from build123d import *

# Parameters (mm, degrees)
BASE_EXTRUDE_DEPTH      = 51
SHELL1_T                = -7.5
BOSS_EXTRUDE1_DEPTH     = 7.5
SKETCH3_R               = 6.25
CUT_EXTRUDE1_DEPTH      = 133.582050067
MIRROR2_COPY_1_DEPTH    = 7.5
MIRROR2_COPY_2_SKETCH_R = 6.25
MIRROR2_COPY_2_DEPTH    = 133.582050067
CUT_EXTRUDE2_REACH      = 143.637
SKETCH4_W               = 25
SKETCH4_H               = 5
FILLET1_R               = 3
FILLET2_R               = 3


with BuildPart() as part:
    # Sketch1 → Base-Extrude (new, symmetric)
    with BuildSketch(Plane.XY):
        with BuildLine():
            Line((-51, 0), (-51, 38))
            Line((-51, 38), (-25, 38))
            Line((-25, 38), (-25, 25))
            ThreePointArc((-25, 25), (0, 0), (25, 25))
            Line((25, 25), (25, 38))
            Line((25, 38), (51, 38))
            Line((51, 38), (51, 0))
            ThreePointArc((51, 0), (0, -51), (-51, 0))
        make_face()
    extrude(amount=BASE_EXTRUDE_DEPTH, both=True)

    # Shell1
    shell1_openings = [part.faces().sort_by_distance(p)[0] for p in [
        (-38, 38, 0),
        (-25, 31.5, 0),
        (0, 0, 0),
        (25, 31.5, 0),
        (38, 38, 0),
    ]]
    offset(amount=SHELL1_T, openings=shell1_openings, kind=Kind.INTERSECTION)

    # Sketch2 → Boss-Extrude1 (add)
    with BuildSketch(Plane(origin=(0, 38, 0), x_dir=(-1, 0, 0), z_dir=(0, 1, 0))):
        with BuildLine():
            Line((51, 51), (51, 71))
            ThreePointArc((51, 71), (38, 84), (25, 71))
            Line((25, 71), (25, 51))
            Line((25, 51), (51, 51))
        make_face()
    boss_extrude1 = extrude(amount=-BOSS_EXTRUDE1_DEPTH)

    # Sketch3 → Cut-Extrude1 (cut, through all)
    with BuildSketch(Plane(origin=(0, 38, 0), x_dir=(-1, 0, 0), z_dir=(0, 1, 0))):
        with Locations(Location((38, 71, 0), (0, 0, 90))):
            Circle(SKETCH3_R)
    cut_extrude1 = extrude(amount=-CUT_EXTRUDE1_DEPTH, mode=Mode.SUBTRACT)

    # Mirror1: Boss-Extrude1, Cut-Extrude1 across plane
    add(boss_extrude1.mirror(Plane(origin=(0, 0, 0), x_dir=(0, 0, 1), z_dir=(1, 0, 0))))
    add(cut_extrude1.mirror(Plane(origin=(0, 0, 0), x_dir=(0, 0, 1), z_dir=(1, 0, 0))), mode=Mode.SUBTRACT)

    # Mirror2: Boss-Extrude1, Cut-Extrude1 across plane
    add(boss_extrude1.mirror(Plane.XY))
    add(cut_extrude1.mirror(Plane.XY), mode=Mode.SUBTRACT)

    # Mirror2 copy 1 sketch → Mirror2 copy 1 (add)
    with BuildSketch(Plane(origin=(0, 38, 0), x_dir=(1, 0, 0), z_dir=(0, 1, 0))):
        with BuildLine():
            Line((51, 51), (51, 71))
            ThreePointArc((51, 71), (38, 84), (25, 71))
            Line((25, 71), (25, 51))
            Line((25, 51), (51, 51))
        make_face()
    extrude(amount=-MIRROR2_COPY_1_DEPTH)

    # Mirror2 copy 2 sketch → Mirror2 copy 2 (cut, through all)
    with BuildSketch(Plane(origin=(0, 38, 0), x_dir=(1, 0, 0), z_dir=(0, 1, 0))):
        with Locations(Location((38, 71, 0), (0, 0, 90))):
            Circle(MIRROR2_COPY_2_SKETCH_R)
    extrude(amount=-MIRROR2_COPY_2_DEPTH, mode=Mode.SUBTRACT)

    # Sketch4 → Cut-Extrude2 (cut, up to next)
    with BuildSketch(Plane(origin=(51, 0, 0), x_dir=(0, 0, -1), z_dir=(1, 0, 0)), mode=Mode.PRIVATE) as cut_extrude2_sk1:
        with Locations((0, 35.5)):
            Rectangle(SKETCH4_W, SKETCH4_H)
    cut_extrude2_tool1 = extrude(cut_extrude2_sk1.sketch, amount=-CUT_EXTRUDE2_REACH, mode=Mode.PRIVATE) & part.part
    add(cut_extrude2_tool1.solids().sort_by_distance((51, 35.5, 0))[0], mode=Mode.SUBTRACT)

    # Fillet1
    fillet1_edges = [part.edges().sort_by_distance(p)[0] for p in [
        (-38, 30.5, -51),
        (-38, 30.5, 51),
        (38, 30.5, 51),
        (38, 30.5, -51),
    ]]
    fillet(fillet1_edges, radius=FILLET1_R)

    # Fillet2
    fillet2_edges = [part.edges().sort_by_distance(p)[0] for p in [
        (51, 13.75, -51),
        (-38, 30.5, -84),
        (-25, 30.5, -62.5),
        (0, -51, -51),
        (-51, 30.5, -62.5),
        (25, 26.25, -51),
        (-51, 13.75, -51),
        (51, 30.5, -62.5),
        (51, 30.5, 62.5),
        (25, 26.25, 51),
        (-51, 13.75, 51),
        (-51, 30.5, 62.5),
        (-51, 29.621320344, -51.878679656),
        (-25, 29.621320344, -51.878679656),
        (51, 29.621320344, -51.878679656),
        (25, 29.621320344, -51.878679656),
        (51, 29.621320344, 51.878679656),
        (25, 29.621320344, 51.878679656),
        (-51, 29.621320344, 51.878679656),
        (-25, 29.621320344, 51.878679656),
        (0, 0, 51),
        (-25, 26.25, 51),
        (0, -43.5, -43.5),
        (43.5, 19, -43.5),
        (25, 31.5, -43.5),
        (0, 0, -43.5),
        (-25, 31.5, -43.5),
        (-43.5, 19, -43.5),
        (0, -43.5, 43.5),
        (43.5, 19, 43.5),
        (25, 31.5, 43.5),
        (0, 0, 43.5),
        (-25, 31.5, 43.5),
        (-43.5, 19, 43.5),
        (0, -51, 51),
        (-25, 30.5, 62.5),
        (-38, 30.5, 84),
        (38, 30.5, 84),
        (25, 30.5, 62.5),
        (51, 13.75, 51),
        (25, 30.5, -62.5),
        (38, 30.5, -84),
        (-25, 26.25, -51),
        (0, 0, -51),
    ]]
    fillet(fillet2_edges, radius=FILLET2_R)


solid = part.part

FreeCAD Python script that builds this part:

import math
import FreeCAD as App
import Part
import Sketcher
from FreeCAD import Vector


def edges_at(feature, points):
    """Names of the edges that pass closest to the given points."""
    edges = feature.Shape.Edges
    near = lambda p: min(range(len(edges)), key=lambda i: edges[i].distToShape(Part.Vertex(*p))[0])
    return sorted({f"Edge{near(p) + 1}" for p in points})


def faces_at(feature, points):
    """Names of the faces that lie closest to the given points."""
    faces = feature.Shape.Faces
    near = lambda p: min(range(len(faces)), key=lambda i: faces[i].distToShape(Part.Vertex(*p))[0])
    return sorted({f"Face{near(p) + 1}" for p in points})

doc = App.newDocument("Part")
params = doc.addObject("Spreadsheet::Sheet", "Params")
for row, (alias, value) in enumerate([
    ("sketch1_radius", "51 mm"),
    ("sketch1_radius2", "25 mm"),
    ("sketch1_height", "38 mm"),
    ("sketch1_height2", "13 mm"),
    ("pad1_length", "102 mm"),
    ("thickness_wall", "7.5 mm"),
    ("sketch2_radius", "13 mm"),
    ("sketch2_height", "20 mm"),
    ("pad2_length", "7.5 mm"),
    ("sketch3_diameter", "12.5 mm"),
    ("sketch4_radius", "13 mm"),
    ("sketch4_height", "20 mm"),
    ("pad3_length", "7.5 mm"),
    ("sketch5_diameter", "12.5 mm"),
    ("sketch6_width", "5 mm"),
    ("sketch6_height", "25 mm"),
    ("fillet_radius", "3 mm"),
    ("fillet2_radius", "3 mm"),
], start=1):
    params.set(f"A{row}", alias)
    params.set(f"B{row}", "=" + value)
    params.setAlias(f"B{row}", alias)

body = doc.addObject("PartDesign::Body", "Body")

sketch1 = body.newObject("Sketcher::SketchObject", "Sketch")
sketch1.AttachmentSupport = (doc.getObject("XY_Plane"), [""])
sketch1.MapMode = "FlatFace"
sketch1.addGeometry([
    Part.LineSegment(Vector(-51, 38, 0), Vector(-51, 0, 0)),
    Part.ArcOfCircle(Part.Circle(Vector(0, 0, 0), Vector(0, 0, 1), 51), math.radians(180), math.radians(360)),
    Part.LineSegment(Vector(51, 0, 0), Vector(51, 38, 0)),
    Part.LineSegment(Vector(51, 38, 0), Vector(25, 38, 0)),
    Part.LineSegment(Vector(25, 38, 0), Vector(25, 25, 0)),
    Part.ArcOfCircle(Part.Circle(Vector(0, 25, 0), Vector(0, 0, 1), 25), math.radians(180), math.radians(360)),
    Part.LineSegment(Vector(-25, 25, 0), Vector(-25, 38, 0)),
    Part.LineSegment(Vector(-25, 38, 0), Vector(-51, 38, 0)),
], False)
sketch1.addConstraint([
    Sketcher.Constraint("Tangent", 0, 2, 1, 1),
    Sketcher.Constraint("Tangent", 1, 2, 2, 1),
    Sketcher.Constraint("Coincident", 2, 2, 3, 1),
    Sketcher.Constraint("Coincident", 3, 2, 4, 1),
    Sketcher.Constraint("Tangent", 4, 2, 5, 2),
    Sketcher.Constraint("Tangent", 5, 1, 6, 1),
    Sketcher.Constraint("Coincident", 6, 2, 7, 1),
    Sketcher.Constraint("Coincident", 7, 2, 0, 1),
    Sketcher.Constraint("Vertical", 0),
    Sketcher.Constraint("Vertical", 2),
    Sketcher.Constraint("Horizontal", 3),
    Sketcher.Constraint("Vertical", 4),
    Sketcher.Constraint("Vertical", 6),
    Sketcher.Constraint("Horizontal", 7),
    Sketcher.Constraint("Coincident", 1, 3, -1, 1),
    Sketcher.Constraint("Symmetric", 3, 2, 6, 2, -2),
    Sketcher.Constraint("Radius", 1, 51.0),
    Sketcher.Constraint("Radius", 5, 25.0),
    Sketcher.Constraint("DistanceY", 0, 2, 0, 1, 38.0),
    Sketcher.Constraint("DistanceY", 4, 2, 4, 1, 13.0),
])
sketch1.setExpression("Constraints[16]", "Params.sketch1_radius")
sketch1.setExpression("Constraints[17]", "Params.sketch1_radius2")
sketch1.setExpression("Constraints[18]", "Params.sketch1_height")
sketch1.setExpression("Constraints[19]", "Params.sketch1_height2")
pad1 = body.newObject("PartDesign::Pad", "Pad")
pad1.Profile = sketch1
pad1.setExpression("Length", "Params.pad1_length")
pad1.Midplane = True
doc.recompute()

thickness = body.newObject("PartDesign::Thickness", "Thickness")
thickness.Base = (pad1, faces_at(pad1, [
    (-38, 38, 0),
    (-25, 31.5, 0),
    (0, 0, 0),
    (25, 31.5, 0),
    (38, 38, 0),
]))
thickness.setExpression("Value", "Params.thickness_wall")
thickness.Reversed = True
thickness.Join = "Intersection"

sketch2 = body.newObject("Sketcher::SketchObject", "Sketch001")
sketch2.AttachmentSupport = (doc.getObject("XZ_Plane"), [""])
sketch2.MapMode = "FlatFace"
sketch2.AttachmentOffset = App.Placement(Vector(0, 0, -38), App.Rotation())
sketch2.addGeometry([
    Part.LineSegment(Vector(-51, 51, 0), Vector(-51, 71, 0)),
    Part.ArcOfCircle(Part.Circle(Vector(-38, 71, 0), Vector(0, 0, 1), 13), math.radians(0), math.radians(180)),
    Part.LineSegment(Vector(-25, 71, 0), Vector(-25, 51, 0)),
    Part.LineSegment(Vector(-25, 51, 0), Vector(-51, 51, 0)),
], False)
sketch2.addConstraint([
    Sketcher.Constraint("Tangent", 0, 2, 1, 2),
    Sketcher.Constraint("Tangent", 1, 1, 2, 1),
    Sketcher.Constraint("Coincident", 2, 2, 3, 1),
    Sketcher.Constraint("Coincident", 3, 2, 0, 1),
    Sketcher.Constraint("Vertical", 0),
    Sketcher.Constraint("Vertical", 2),
    Sketcher.Constraint("Horizontal", 3),
    Sketcher.Constraint("Radius", 1, 13.0),
    Sketcher.Constraint("DistanceY", 0, 1, 0, 2, 20.0),
    Sketcher.Constraint("DistanceX", 1, 3, -1, 1, 38.0),
    Sketcher.Constraint("DistanceY", -1, 1, 1, 3, 71.0),
])
sketch2.setExpression("Constraints[7]", "Params.sketch2_radius")
sketch2.setExpression("Constraints[8]", "Params.sketch2_height")
pad2 = body.newObject("PartDesign::Pad", "Pad001")
pad2.Profile = sketch2
pad2.setExpression("Length", "Params.pad2_length")

sketch3 = body.newObject("Sketcher::SketchObject", "Sketch002")
sketch3.AttachmentSupport = (doc.getObject("XZ_Plane"), [""])
sketch3.MapMode = "FlatFace"
sketch3.AttachmentOffset = App.Placement(Vector(0, 0, -38), App.Rotation())
sketch3.addGeometry(Part.Circle(Vector(-38, 71, 0), Vector(0, 0, 1), 6), False)
sketch3.addConstraint([
    Sketcher.Constraint("Diameter", 0, 12.5),
    Sketcher.Constraint("DistanceX", 0, 3, -1, 1, 38.0),
    Sketcher.Constraint("DistanceY", -1, 1, 0, 3, 71.0),
])
sketch3.setExpression("Constraints[0]", "Params.sketch3_diameter")
pocket1 = body.newObject("PartDesign::Pocket", "Pocket")
pocket1.Profile = sketch3
pocket1.Type = "ThroughAll"
pocket1.Reversed = True
doc.recompute()

mirrored = body.newObject("PartDesign::Mirrored", "Mirrored")
mirrored.Originals = [pad2, pocket1]
mirrored.MirrorPlane = (doc.getObject("YZ_Plane"), [""])
body.Tip = mirrored
doc.recompute()

mirrored2 = body.newObject("PartDesign::Mirrored", "Mirrored001")
mirrored2.Originals = [pad2, pocket1]
mirrored2.MirrorPlane = (doc.getObject("XY_Plane"), [""])
body.Tip = mirrored2

sketch4 = body.newObject("Sketcher::SketchObject", "Sketch003")
sketch4.AttachmentSupport = (doc.getObject("XZ_Plane"), [""])
sketch4.MapMode = "FlatFace"
sketch4.AttachmentOffset = App.Placement(Vector(0, 0, -38), App.Rotation())
sketch4.addGeometry([
    Part.LineSegment(Vector(51, -51, 0), Vector(51, -71, 0)),
    Part.ArcOfCircle(Part.Circle(Vector(38, -71, 0), Vector(0, 0, 1), 13), math.radians(180), math.radians(360)),
    Part.LineSegment(Vector(25, -71, 0), Vector(25, -51, 0)),
    Part.LineSegment(Vector(25, -51, 0), Vector(51, -51, 0)),
], False)
sketch4.addConstraint([
    Sketcher.Constraint("Tangent", 0, 2, 1, 2),
    Sketcher.Constraint("Tangent", 1, 1, 2, 1),
    Sketcher.Constraint("Coincident", 2, 2, 3, 1),
    Sketcher.Constraint("Coincident", 3, 2, 0, 1),
    Sketcher.Constraint("Vertical", 0),
    Sketcher.Constraint("Vertical", 2),
    Sketcher.Constraint("Horizontal", 3),
    Sketcher.Constraint("Radius", 1, 13.0),
    Sketcher.Constraint("DistanceY", 0, 2, 0, 1, 20.0),
    Sketcher.Constraint("DistanceX", -1, 1, 1, 3, 38.0),
    Sketcher.Constraint("DistanceY", 1, 3, -1, 1, 71.0),
])
sketch4.setExpression("Constraints[7]", "Params.sketch4_radius")
sketch4.setExpression("Constraints[8]", "Params.sketch4_height")
pad3 = body.newObject("PartDesign::Pad", "Pad002")
pad3.Profile = sketch4
pad3.setExpression("Length", "Params.pad3_length")

sketch5 = body.newObject("Sketcher::SketchObject", "Sketch004")
sketch5.AttachmentSupport = (doc.getObject("XZ_Plane"), [""])
sketch5.MapMode = "FlatFace"
sketch5.AttachmentOffset = App.Placement(Vector(0, 0, -38), App.Rotation())
sketch5.addGeometry(Part.Circle(Vector(38, -71, 0), Vector(0, 0, 1), 6), False)
sketch5.addConstraint([
    Sketcher.Constraint("Diameter", 0, 12.5),
    Sketcher.Constraint("DistanceX", -1, 1, 0, 3, 38.0),
    Sketcher.Constraint("DistanceY", 0, 3, -1, 1, 71.0),
])
sketch5.setExpression("Constraints[0]", "Params.sketch5_diameter")
pocket2 = body.newObject("PartDesign::Pocket", "Pocket001")
pocket2.Profile = sketch5
pocket2.Type = "ThroughAll"
pocket2.Reversed = True

sketch6 = body.newObject("Sketcher::SketchObject", "Sketch005")
sketch6.AttachmentSupport = (doc.getObject("YZ_Plane"), [""])
sketch6.MapMode = "FlatFace"
sketch6.AttachmentOffset = App.Placement(Vector(0, 0, 51), App.Rotation())
sketch6.addGeometry([
    Part.LineSegment(Vector(38, 12, 0), Vector(33, 12, 0)),
    Part.LineSegment(Vector(33, 12, 0), Vector(33, -12, 0)),
    Part.LineSegment(Vector(33, -12, 0), Vector(38, -12, 0)),
    Part.LineSegment(Vector(38, -12, 0), Vector(38, 12, 0)),
], False)
sketch6.addConstraint([
    Sketcher.Constraint("Coincident", 0, 2, 1, 1),
    Sketcher.Constraint("Coincident", 1, 2, 2, 1),
    Sketcher.Constraint("Coincident", 2, 2, 3, 1),
    Sketcher.Constraint("Coincident", 3, 2, 0, 1),
    Sketcher.Constraint("Horizontal", 0),
    Sketcher.Constraint("Vertical", 1),
    Sketcher.Constraint("Horizontal", 2),
    Sketcher.Constraint("Vertical", 3),
    Sketcher.Constraint("DistanceX", 0, 2, 0, 1, 5.0),
    Sketcher.Constraint("DistanceY", 1, 2, 1, 1, 25.0),
    Sketcher.Constraint("DistanceX", -1, 1, 0, 2, 33.0),
    Sketcher.Constraint("DistanceY", -1, 1, 0, 2, 12.5),
])
sketch6.setExpression("Constraints[8]", "Params.sketch6_width")
sketch6.setExpression("Constraints[9]", "Params.sketch6_height")
pocket3 = body.newObject("PartDesign::Pocket", "Pocket002")
pocket3.Profile = sketch6
pocket3.Type = "UpToFirst"
doc.recompute()

fillet = body.newObject("PartDesign::Fillet", "Fillet")
fillet.Base = (pocket3, edges_at(pocket3, [
    (-38, 30.5, -51),
    (-38, 30.5, 51),
    (38, 30.5, 51),
    (38, 30.5, -51),
]))
fillet.setExpression("Radius", "Params.fillet_radius")
doc.recompute()

fillet2 = body.newObject("PartDesign::Fillet", "Fillet001")
fillet2.Base = (fillet, edges_at(fillet, [
    (51, 13.75, -51),
    (-38, 30.5, -84),
    (-25, 30.5, -62.5),
    (0, -51, -51),
    (-51, 30.5, -62.5),
    (25, 26.25, -51),
    (-51, 13.75, -51),
    (51, 30.5, -62.5),
    (51, 30.5, 62.5),
    (25, 26.25, 51),
    (-51, 13.75, 51),
    (-51, 30.5, 62.5),
    (-51, 29.621, -51.879),
    (-25, 29.621, -51.879),
    (51, 29.621, -51.879),
    (25, 29.621, -51.879),
    (51, 29.621, 51.879),
    (25, 29.621, 51.879),
    (-51, 29.621, 51.879),
    (-25, 29.621, 51.879),
    (0, 0, 51),
    (-25, 26.25, 51),
    (0, -43.5, -43.5),
    (43.5, 19, -43.5),
    (25, 31.5, -43.5),
    (0, 0, -43.5),
    (-25, 31.5, -43.5),
    (-43.5, 19, -43.5),
    (0, -43.5, 43.5),
    (43.5, 19, 43.5),
    (25, 31.5, 43.5),
    (0, 0, 43.5),
    (-25, 31.5, 43.5),
    (-43.5, 19, 43.5),
    (0, -51, 51),
    (-25, 30.5, 62.5),
    (-38, 30.5, 84),
    (38, 30.5, 84),
    (25, 30.5, 62.5),
    (51, 13.75, 51),
    (25, 30.5, -62.5),
    (38, 30.5, -84),
    (-25, 26.25, -51),
    (0, 0, -51),
]))
fillet2.setExpression("Radius", "Params.fillet2_radius")

doc.recompute()
